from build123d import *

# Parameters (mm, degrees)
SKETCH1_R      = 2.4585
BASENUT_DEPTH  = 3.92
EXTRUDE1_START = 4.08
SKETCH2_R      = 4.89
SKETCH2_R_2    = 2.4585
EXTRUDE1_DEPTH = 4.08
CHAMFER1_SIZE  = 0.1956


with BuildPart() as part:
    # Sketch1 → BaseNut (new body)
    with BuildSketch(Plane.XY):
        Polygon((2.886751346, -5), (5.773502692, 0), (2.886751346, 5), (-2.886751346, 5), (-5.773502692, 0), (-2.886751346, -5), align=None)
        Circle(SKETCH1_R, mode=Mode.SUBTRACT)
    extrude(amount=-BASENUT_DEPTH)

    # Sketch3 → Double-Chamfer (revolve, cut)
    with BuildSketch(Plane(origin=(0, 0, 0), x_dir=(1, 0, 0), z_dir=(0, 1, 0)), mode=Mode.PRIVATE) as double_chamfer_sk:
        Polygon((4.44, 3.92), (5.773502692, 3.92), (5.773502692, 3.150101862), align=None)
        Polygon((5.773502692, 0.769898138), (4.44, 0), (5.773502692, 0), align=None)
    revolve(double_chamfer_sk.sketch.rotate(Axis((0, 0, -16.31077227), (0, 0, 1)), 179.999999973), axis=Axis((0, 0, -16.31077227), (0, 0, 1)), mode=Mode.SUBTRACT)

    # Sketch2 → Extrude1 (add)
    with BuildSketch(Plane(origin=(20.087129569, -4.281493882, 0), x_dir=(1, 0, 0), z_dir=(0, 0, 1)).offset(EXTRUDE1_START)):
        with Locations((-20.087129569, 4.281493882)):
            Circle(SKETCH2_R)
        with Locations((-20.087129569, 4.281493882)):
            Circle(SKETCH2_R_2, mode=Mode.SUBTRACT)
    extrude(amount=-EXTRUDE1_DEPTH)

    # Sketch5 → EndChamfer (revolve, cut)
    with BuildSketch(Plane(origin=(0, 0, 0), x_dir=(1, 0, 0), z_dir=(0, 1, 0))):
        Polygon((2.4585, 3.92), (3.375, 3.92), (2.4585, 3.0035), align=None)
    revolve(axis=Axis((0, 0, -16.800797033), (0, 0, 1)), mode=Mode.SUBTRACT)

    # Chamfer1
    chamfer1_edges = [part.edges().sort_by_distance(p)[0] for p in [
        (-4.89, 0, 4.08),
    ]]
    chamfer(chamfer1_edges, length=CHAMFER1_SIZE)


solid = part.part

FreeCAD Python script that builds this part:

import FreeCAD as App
import Part
import Sketcher

V = App.Vector
Q = App.Units.Quantity


def edges_at(feature, points):
    """Names of the edges that pass closest to the given points."""
    edges = feature.Shape.Edges
    near = lambda p: min(range(len(edges)), key=lambda i: edges[i].distToShape(Part.Vertex(*p))[0])
    return sorted({f"Edge{near(p) + 1}" for p in points})


def add_polygon(sketch, points):
    """Adds a closed chain of lines whose ends are joined by coincident constraints."""
    first, n = sketch.GeometryCount, len(points)
    for a, b in zip(points, points[1:] + points[:1]):
        sketch.addGeometry(Part.LineSegment(App.Vector(*a, 0), App.Vector(*b, 0)), False)
    for i in range(n):
        sketch.addConstraint(Sketcher.Constraint("Coincident", first + i, 2, first + (i + 1) % n, 1))

doc = App.newDocument("Part")
body = doc.addObject("PartDesign::Body", "Body")

# Sketch on XY plane
sketch1 = body.newObject("Sketcher::SketchObject", "Sketch")
sketch1.AttachmentSupport = (doc.getObject("XY_Plane"), [""])
sketch1.MapMode = "FlatFace"
add_polygon(sketch1, [(2.886751, -5), (5.773503, 0), (2.886751, 5), (-2.886751, 5), (-5.773503, 0), (-2.886751, -5)])  # lines 0-5
sketch1.addGeometry(Part.Circle(V(0, 0, 0), V(0, 0, 1), 2.4585), False)  # 6
sketch1.addConstraint(Sketcher.Constraint("Horizontal", 2))
sketch1.addConstraint(Sketcher.Constraint("Horizontal", 5))
sketch1.addConstraint(Sketcher.Constraint("Coincident", 6, 3, -1, 1))
sketch1.addConstraint(Sketcher.Constraint("Symmetric", 0, 2, 3, 2, -1, 1))
sketch1.addConstraint(Sketcher.Constraint("Symmetric", 1, 2, 4, 2, -1, 1))
sketch1.addConstraint(Sketcher.Constraint("PointOnObject", 0, 2, -1))
sketch1.addConstraint(Sketcher.Constraint("Parallel", 0, 3))
sketch1.addConstraint(Sketcher.Constraint("Vertical", 2, 2, 4, 2))
sketch1.addConstraint(Sketcher.Constraint("Angle", 0, Q("60 deg")))
sketch1.addConstraint(Sketcher.Constraint("Diameter", 6, 4.917))
sketch1.addConstraint(Sketcher.Constraint("DistanceY", -1, 1, 1, 2, 5.0))
sketch1.addConstraint(Sketcher.Constraint("DistanceX", 2, 2, 2, 1, 5.773503))
pad1 = body.newObject("PartDesign::Pad", "Pad")
pad1.Profile = sketch1
pad1.Length = 3.92
pad1.Reversed = True

# Sketch on XZ plane
sketch2 = body.newObject("Sketcher::SketchObject", "Sketch001")
sketch2.AttachmentSupport = (doc.getObject("XZ_Plane"), [""])
sketch2.MapMode = "FlatFace"
add_polygon(sketch2, [(5.773503, -3.92), (4.44, -3.92), (5.773503, -3.150102)])  # lines 0-2
add_polygon(sketch2, [(5.773503, -0.769898), (4.44, 0), (5.773503, 0)])  # lines 3-5
sketch2.addConstraint(Sketcher.Constraint("Horizontal", 0))
sketch2.addConstraint(Sketcher.Constraint("Vertical", 2))
sketch2.addConstraint(Sketcher.Constraint("Horizontal", 4))
sketch2.addConstraint(Sketcher.Constraint("Vertical", 5))
sketch2.addConstraint(Sketcher.Constraint("PointOnObject", 3, 2, -1))
sketch2.addConstraint(Sketcher.Constraint("Vertical", 0, 2, 3, 2))
sketch2.addConstraint(Sketcher.Constraint("Vertical", 2, 2, 4, 2))
sketch2.addConstraint(Sketcher.Constraint("Equal", 2, 5))
sketch2.addConstraint(Sketcher.Constraint("Angle", 1, Q("30 deg")))
sketch2.addConstraint(Sketcher.Constraint("DistanceX", -1, 1, 0, 2, 4.44))
sketch2.addConstraint(Sketcher.Constraint("DistanceY", 0, 2, -1, 1, 3.92))
sketch2.addConstraint(Sketcher.Constraint("DistanceY", 2, 2, 2, 1, 0.769898))
groove = body.newObject("PartDesign::Groove", "Groove")
groove.Profile = sketch2
groove.ReferenceAxis = (sketch2, ["V_Axis"])
groove.Angle = 360

# Sketch on XY plane
sketch3 = body.newObject("Sketcher::SketchObject", "Sketch002")
sketch3.AttachmentSupport = (doc.getObject("XY_Plane"), [""])
sketch3.MapMode = "FlatFace"
sketch3.AttachmentOffset = App.Placement(V(0, 0, 4.08), App.Rotation())
sketch3.addGeometry(Part.Circle(V(0, 0, 0), V(0, 0, 1), 4.89), False)
sketch3.addGeometry(Part.Circle(V(0, 0, 0), V(0, 0, 1), 2.4585), False)
sketch3.addConstraint(Sketcher.Constraint("Coincident", 0, 3, -1, 1))
sketch3.addConstraint(Sketcher.Constraint("Coincident", 1, 3, -1, 1))
sketch3.addConstraint(Sketcher.Constraint("Diameter", 0, 9.78))
sketch3.addConstraint(Sketcher.Constraint("Diameter", 1, 4.917))
pad2 = body.newObject("PartDesign::Pad", "Pad001")
pad2.Profile = sketch3
pad2.Length = 4.08
pad2.Reversed = True

# Sketch on XZ plane
sketch4 = body.newObject("Sketcher::SketchObject", "Sketch003")
sketch4.AttachmentSupport = (doc.getObject("XZ_Plane"), [""])
sketch4.MapMode = "FlatFace"
add_polygon(sketch4, [(3.375, -3.92), (2.4585, -3.92), (2.4585, -3.0035)])  # lines 0-2
sketch4.addConstraint(Sketcher.Constraint("Horizontal", 0))
sketch4.addConstraint(Sketcher.Constraint("Vertical", 1))
sketch4.addConstraint(Sketcher.Constraint("Equal", 0, 1))
sketch4.addConstraint(Sketcher.Constraint("DistanceY", 0, 2, -1, 1, 3.92))
sketch4.addConstraint(Sketcher.Constraint("DistanceX", 0, 2, 0, 1, 0.9165))
sketch4.addConstraint(Sketcher.Constraint("DistanceX", -1, 1, 2, 2, 3.375))
groove2 = body.newObject("PartDesign::Groove", "Groove001")
groove2.Profile = sketch4
groove2.ReferenceAxis = (sketch4, ["V_Axis"])
groove2.Angle = 360
doc.recompute()

chamfer = body.newObject("PartDesign::Chamfer", "Chamfer")
chamfer.Base = (groove2, edges_at(groove2, [(-4.89, 0, 4.08)]))
chamfer.Size = 0.1956

doc.recompute()
